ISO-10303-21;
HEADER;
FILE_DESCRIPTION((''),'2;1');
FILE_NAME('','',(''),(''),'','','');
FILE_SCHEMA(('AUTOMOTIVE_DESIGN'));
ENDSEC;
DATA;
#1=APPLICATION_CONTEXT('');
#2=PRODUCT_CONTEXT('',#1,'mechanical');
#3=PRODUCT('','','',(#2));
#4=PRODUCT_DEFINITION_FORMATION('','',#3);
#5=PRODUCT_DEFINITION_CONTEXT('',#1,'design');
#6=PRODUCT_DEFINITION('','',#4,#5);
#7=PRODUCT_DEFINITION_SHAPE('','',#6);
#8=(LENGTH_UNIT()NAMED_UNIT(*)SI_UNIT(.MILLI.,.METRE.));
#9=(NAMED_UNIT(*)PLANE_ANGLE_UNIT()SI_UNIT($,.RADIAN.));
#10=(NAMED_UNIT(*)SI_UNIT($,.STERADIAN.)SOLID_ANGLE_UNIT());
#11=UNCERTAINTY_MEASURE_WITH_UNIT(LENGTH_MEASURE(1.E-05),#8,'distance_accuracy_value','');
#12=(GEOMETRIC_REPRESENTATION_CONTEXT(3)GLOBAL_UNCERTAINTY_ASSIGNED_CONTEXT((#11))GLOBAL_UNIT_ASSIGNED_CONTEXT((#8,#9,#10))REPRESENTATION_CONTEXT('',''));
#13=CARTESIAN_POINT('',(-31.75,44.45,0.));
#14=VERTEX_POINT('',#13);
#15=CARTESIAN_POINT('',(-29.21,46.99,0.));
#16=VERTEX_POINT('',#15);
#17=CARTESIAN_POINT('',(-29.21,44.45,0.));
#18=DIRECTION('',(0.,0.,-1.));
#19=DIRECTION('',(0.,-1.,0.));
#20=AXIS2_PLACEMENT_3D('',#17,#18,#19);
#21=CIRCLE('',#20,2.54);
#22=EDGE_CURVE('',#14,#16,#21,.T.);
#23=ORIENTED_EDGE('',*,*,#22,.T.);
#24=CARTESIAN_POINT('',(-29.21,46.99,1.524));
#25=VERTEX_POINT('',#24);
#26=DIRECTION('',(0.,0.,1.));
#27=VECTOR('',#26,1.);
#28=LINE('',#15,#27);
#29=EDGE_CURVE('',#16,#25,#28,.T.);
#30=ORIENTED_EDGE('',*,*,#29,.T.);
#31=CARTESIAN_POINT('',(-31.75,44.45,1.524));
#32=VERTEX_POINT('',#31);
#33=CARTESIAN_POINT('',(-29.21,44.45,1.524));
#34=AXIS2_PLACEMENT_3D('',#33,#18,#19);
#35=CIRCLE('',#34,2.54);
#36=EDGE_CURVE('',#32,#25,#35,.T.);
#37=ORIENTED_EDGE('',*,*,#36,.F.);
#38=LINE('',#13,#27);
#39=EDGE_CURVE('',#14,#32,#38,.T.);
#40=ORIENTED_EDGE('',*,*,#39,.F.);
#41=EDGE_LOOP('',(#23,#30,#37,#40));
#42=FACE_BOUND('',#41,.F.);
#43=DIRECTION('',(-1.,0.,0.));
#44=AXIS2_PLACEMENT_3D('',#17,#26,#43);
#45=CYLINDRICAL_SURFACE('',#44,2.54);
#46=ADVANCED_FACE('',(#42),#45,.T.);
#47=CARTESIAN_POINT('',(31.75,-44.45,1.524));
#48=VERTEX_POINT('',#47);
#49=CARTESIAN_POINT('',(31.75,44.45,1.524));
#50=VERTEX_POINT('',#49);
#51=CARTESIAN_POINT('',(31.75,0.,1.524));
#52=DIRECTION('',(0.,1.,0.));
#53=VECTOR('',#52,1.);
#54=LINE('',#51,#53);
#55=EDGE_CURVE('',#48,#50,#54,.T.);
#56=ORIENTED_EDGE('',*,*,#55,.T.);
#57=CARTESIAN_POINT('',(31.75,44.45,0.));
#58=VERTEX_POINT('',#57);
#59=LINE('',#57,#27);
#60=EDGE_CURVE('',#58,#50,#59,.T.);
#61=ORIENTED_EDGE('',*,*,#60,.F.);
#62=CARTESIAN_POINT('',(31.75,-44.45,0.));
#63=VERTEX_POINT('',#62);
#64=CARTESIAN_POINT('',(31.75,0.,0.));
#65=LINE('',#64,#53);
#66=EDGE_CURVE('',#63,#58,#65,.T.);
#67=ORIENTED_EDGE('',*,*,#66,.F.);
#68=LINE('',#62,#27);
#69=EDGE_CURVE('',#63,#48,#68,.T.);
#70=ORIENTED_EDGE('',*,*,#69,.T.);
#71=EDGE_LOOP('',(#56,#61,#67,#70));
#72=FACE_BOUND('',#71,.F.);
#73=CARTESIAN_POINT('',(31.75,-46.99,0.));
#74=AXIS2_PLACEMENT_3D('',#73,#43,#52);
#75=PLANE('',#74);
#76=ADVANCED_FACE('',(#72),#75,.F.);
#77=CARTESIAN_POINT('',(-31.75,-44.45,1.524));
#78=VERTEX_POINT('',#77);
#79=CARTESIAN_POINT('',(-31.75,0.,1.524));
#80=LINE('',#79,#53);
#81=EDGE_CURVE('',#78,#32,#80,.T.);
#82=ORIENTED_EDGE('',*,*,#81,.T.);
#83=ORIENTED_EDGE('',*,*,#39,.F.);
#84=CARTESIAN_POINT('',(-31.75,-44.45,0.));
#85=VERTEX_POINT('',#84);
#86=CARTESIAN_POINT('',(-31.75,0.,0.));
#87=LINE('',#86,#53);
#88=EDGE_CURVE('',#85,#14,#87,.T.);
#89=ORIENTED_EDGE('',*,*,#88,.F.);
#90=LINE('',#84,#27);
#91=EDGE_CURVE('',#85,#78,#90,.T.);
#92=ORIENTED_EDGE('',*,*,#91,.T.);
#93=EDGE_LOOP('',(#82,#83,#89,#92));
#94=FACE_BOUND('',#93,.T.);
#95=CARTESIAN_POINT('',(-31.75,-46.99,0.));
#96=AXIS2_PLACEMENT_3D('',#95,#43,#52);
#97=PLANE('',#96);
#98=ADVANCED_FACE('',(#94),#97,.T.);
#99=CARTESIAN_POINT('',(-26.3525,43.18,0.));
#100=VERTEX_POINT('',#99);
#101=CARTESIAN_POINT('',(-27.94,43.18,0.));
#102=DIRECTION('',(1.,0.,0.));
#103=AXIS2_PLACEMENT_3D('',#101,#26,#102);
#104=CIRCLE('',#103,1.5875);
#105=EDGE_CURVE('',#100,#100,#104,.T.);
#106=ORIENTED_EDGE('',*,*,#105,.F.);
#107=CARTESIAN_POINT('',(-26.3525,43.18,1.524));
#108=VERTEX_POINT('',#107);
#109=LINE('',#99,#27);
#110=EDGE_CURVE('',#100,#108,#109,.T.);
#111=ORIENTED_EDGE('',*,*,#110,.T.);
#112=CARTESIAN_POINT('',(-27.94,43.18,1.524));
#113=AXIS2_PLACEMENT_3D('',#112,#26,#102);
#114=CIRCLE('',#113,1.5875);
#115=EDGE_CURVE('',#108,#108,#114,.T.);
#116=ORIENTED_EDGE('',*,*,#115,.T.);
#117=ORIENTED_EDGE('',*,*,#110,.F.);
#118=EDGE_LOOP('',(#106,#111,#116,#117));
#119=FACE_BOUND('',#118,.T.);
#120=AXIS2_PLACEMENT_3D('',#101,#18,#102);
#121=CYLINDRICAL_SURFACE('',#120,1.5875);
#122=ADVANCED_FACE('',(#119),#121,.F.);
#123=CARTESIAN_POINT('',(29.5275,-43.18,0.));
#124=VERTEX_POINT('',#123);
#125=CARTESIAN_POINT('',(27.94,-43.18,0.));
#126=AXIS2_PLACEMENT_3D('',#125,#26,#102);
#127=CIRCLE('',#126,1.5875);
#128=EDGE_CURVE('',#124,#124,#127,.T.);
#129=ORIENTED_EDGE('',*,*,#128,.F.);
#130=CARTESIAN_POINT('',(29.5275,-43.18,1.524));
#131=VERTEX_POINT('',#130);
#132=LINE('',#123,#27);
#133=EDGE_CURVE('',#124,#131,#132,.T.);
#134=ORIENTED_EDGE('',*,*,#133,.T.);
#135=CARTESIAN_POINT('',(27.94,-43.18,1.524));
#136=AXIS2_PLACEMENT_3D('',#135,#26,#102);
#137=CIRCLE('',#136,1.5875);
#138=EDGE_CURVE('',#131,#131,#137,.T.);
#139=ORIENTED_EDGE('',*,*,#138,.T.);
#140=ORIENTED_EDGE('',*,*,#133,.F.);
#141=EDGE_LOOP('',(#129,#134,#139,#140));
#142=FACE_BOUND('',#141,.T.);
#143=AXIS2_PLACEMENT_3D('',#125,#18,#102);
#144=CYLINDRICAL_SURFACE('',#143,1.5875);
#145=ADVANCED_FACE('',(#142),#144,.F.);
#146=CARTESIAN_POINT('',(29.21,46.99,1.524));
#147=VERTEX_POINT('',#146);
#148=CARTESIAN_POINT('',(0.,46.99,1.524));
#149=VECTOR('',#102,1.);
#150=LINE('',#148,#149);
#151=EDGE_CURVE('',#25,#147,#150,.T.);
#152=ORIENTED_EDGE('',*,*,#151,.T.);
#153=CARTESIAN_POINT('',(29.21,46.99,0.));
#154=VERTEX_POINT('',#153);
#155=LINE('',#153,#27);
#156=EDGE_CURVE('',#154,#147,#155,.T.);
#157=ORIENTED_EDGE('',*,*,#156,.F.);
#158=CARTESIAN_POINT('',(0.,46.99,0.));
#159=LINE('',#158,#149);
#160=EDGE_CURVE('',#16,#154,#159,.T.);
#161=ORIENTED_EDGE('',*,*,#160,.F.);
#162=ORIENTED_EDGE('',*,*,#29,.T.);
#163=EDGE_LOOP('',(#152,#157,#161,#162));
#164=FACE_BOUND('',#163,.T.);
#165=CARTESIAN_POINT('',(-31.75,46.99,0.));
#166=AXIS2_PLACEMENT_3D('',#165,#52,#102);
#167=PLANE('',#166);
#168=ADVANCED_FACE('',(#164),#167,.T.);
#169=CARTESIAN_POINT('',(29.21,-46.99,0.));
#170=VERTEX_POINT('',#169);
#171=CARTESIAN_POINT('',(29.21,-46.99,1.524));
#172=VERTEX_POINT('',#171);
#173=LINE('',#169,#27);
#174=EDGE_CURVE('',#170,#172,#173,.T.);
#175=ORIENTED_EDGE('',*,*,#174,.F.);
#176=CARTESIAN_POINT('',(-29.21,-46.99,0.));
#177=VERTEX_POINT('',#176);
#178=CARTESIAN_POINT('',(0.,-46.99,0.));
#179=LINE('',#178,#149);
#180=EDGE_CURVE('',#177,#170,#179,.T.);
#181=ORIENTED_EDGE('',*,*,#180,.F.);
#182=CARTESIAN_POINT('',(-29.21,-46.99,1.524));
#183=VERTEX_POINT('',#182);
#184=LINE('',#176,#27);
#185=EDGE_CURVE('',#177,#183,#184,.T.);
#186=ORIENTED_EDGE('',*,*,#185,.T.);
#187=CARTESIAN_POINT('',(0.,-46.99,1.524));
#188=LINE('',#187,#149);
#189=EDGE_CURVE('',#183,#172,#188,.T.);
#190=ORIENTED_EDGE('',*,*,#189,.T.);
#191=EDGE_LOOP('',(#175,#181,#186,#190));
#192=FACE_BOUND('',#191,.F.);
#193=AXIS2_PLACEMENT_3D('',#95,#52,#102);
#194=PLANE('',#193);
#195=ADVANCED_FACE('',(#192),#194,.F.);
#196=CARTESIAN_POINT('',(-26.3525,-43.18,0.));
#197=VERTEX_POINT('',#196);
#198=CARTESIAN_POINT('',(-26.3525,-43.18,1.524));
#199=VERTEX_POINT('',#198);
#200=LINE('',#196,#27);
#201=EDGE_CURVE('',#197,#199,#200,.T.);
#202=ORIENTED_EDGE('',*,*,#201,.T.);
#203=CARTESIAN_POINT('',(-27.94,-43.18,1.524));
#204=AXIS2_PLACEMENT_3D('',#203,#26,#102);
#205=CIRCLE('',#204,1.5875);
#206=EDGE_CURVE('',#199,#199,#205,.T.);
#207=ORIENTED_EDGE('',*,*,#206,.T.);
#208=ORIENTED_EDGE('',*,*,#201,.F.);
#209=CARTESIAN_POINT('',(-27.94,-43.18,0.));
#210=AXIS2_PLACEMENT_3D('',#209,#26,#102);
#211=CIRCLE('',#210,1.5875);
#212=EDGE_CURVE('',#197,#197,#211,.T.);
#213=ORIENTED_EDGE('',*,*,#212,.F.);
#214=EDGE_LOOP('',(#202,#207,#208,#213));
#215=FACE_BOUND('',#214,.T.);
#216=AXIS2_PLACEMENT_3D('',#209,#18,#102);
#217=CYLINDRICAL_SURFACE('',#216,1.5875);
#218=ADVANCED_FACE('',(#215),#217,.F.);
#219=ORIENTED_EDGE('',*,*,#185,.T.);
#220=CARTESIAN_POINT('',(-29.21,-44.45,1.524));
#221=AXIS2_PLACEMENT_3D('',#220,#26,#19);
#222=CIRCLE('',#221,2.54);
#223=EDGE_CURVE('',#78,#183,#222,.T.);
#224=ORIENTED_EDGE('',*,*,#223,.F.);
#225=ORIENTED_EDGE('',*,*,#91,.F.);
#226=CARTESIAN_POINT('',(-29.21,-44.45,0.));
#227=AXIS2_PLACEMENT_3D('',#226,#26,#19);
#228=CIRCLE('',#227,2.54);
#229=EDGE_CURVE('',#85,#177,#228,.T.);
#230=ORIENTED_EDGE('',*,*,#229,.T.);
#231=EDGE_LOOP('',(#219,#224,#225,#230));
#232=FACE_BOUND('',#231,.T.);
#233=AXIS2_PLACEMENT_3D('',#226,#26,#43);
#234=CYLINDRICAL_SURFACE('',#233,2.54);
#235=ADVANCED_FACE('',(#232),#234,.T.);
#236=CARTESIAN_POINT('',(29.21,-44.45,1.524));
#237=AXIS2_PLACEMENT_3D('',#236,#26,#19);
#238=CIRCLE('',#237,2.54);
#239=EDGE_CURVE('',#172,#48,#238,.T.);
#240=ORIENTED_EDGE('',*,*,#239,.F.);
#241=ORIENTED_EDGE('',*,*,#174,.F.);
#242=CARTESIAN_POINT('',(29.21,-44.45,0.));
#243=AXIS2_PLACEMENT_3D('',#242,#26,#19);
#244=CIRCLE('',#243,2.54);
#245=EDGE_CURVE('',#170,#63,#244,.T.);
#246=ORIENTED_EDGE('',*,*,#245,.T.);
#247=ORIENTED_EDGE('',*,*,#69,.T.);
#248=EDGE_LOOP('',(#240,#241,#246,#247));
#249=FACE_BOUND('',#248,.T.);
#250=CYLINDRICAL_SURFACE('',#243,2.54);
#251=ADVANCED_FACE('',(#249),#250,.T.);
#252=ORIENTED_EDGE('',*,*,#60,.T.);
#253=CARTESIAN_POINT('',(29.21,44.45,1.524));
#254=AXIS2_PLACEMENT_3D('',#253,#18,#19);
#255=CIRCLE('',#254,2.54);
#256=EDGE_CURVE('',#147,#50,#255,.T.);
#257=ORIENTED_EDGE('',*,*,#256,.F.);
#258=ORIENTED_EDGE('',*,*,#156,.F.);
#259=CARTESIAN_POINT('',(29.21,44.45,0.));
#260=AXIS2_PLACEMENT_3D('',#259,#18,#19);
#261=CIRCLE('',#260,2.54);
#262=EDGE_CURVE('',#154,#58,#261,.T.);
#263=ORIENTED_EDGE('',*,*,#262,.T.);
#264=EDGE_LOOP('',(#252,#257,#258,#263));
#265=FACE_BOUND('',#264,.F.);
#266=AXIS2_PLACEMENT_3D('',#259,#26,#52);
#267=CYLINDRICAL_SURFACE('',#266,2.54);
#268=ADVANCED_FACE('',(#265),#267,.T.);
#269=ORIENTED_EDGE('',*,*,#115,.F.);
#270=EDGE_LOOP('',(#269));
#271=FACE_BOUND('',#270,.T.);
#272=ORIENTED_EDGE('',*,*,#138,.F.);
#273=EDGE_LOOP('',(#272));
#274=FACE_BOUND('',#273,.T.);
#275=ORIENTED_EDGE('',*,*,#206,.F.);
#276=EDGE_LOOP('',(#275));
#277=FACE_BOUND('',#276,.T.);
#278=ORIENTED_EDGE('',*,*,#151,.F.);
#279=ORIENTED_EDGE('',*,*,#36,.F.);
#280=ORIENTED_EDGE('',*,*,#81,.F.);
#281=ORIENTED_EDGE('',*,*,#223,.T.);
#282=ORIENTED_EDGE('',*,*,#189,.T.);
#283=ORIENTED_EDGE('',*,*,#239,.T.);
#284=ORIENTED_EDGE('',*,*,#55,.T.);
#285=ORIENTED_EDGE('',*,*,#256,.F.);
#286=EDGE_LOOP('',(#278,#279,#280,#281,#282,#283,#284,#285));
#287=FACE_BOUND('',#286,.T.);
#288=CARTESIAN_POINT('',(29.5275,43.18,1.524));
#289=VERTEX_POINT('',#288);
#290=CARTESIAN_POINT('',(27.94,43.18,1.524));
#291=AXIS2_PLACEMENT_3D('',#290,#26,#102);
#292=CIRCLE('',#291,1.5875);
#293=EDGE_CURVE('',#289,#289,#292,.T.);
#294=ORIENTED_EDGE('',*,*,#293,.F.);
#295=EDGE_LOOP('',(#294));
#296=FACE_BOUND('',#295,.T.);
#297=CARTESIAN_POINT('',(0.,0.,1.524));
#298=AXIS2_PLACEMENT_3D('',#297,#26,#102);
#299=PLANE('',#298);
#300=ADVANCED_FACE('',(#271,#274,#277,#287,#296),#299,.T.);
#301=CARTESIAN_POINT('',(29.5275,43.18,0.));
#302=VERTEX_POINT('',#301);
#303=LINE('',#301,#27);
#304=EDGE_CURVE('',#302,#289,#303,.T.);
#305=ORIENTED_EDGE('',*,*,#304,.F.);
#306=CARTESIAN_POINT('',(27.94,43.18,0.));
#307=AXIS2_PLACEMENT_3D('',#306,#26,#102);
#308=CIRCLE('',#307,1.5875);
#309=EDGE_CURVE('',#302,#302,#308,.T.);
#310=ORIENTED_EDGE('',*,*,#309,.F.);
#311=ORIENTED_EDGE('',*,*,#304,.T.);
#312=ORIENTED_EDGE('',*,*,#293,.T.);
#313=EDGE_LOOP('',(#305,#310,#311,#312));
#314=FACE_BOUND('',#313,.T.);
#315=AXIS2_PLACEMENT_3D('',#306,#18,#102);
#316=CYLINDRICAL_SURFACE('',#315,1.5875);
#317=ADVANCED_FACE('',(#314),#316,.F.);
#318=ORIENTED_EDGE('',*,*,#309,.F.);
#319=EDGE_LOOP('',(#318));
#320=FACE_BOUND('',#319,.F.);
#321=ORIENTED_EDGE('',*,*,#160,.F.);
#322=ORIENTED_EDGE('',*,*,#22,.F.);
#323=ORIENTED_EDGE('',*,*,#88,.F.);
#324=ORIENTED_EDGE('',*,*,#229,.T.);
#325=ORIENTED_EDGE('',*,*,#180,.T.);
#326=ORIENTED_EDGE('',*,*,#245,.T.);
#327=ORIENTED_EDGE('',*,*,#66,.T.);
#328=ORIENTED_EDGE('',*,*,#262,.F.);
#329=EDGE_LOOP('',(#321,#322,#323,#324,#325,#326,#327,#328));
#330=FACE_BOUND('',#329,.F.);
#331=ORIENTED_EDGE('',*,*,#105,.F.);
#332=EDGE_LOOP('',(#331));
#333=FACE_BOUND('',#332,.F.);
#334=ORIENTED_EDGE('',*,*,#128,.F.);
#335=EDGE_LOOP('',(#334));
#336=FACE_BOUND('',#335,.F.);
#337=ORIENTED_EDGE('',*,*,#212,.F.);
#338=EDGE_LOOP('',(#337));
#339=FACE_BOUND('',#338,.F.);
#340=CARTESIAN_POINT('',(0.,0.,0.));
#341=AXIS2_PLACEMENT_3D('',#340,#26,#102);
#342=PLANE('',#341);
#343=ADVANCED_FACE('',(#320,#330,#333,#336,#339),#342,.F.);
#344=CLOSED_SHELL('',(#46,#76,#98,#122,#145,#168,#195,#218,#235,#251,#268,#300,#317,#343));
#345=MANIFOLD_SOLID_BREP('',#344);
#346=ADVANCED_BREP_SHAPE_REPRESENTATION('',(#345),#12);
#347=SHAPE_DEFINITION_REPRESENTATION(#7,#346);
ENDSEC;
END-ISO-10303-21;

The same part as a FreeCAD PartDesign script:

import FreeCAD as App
import Part
import Sketcher
Q = App.Units.Quantity


def edges_at(feature, points):
    """Names of the edges that pass closest to the given points."""
    edges = feature.Shape.Edges
    near = lambda p: min(range(len(edges)), key=lambda i: edges[i].distToShape(Part.Vertex(*p))[0])
    return sorted({f"Edge{near(p) + 1}" for p in points})

doc = App.newDocument("Part")
params = doc.addObject("Spreadsheet::Sheet", "Params")
for row, (alias, value) in enumerate([
    ("sketch1_diameter", "0.125 in"),
    ("sketch1_width", "2.5 in"),
    ("sketch1_height", "3.7 in"),
    ("pad1_length", "0.06 in"),
    ("fillet_radius", "0.1 in"),
], start=1):
    params.set(f"A{row}", alias)
    params.set(f"B{row}", "=" + value)
    params.setAlias(f"B{row}", alias)

body = doc.addObject("PartDesign::Body", "Body")

sketch1 = body.newObject("Sketcher::SketchObject", "Sketch")
sketch1.AttachmentSupport = (doc.getObject("XY_Plane"), [""])
sketch1.MapMode = "FlatFace"
sketch1.addGeometry([
    Part.LineSegment(App.Vector(-31.8, 47, 0), App.Vector(-31.8, -47, 0)),
    Part.LineSegment(App.Vector(-31.8, -47, 0), App.Vector(31.8, -47, 0)),
    Part.LineSegment(App.Vector(31.8, -47, 0), App.Vector(31.8, 47, 0)),
    Part.LineSegment(App.Vector(31.8, 47, 0), App.Vector(-31.8, 47, 0)),
    Part.Circle(App.Vector(-27.9, -43.2, 0), App.Vector(0, 0, 1), 1.6),
    Part.Circle(App.Vector(27.9, -43.2, 0), App.Vector(0, 0, 1), 1.6),
    Part.Circle(App.Vector(-27.9, 43.2, 0), App.Vector(0, 0, 1), 1.6),
    Part.Circle(App.Vector(27.9, 43.2, 0), App.Vector(0, 0, 1), 1.6),
], False)
sketch1.addConstraint([
    Sketcher.Constraint("Coincident", 0, 2, 1, 1),
    Sketcher.Constraint("Coincident", 1, 2, 2, 1),
    Sketcher.Constraint("Coincident", 2, 2, 3, 1),
    Sketcher.Constraint("Coincident", 3, 2, 0, 1),
    Sketcher.Constraint("Vertical", 0),
    Sketcher.Constraint("Horizontal", 1),
    Sketcher.Constraint("Vertical", 2),
    Sketcher.Constraint("Horizontal", 3),
    Sketcher.Constraint("Equal", 4, 5),
    Sketcher.Constraint("Equal", 5, 6),
    Sketcher.Constraint("Equal", 6, 7),
    Sketcher.Constraint("Symmetric", 5, 3, 6, 3, -1, 1),
    Sketcher.Constraint("Symmetric", 4, 3, 7, 3, -1, 1),
    Sketcher.Constraint("Symmetric", 0, 2, 2, 2, -1, 1),
    Sketcher.Constraint("Symmetric", 4, 3, 5, 3, -2),
    Sketcher.Constraint("Diameter", 4, Q("0.125 in")),
    Sketcher.Constraint("DistanceX", 1, 1, 1, 2, Q("2.5 in")),
    Sketcher.Constraint("DistanceY", 0, 2, 0, 1, Q("3.7 in")),
    Sketcher.Constraint("DistanceX", 4, 3, -1, 1, Q("1.1 in")),
    Sketcher.Constraint("DistanceY", 4, 3, -1, 1, Q("1.7 in")),
])
sketch1.setExpression("Constraints[15]", "Params.sketch1_diameter")
sketch1.setExpression("Constraints[16]", "Params.sketch1_width")
sketch1.setExpression("Constraints[17]", "Params.sketch1_height")
pad1 = body.newObject("PartDesign::Pad", "Pad")
pad1.Profile = sketch1
pad1.setExpression("Length", "Params.pad1_length")
doc.recompute()

fillet = body.newObject("PartDesign::Fillet", "Fillet")
fillet.Base = (pad1, edges_at(pad1, [
    (-31.75, -46.99, 0.762),
    (31.75, -46.99, 0.762),
    (-31.75, 46.99, 0.762),
    (31.75, 46.99, 0.762),
]))
fillet.setExpression("Radius", "Params.fillet_radius")

doc.recompute()
